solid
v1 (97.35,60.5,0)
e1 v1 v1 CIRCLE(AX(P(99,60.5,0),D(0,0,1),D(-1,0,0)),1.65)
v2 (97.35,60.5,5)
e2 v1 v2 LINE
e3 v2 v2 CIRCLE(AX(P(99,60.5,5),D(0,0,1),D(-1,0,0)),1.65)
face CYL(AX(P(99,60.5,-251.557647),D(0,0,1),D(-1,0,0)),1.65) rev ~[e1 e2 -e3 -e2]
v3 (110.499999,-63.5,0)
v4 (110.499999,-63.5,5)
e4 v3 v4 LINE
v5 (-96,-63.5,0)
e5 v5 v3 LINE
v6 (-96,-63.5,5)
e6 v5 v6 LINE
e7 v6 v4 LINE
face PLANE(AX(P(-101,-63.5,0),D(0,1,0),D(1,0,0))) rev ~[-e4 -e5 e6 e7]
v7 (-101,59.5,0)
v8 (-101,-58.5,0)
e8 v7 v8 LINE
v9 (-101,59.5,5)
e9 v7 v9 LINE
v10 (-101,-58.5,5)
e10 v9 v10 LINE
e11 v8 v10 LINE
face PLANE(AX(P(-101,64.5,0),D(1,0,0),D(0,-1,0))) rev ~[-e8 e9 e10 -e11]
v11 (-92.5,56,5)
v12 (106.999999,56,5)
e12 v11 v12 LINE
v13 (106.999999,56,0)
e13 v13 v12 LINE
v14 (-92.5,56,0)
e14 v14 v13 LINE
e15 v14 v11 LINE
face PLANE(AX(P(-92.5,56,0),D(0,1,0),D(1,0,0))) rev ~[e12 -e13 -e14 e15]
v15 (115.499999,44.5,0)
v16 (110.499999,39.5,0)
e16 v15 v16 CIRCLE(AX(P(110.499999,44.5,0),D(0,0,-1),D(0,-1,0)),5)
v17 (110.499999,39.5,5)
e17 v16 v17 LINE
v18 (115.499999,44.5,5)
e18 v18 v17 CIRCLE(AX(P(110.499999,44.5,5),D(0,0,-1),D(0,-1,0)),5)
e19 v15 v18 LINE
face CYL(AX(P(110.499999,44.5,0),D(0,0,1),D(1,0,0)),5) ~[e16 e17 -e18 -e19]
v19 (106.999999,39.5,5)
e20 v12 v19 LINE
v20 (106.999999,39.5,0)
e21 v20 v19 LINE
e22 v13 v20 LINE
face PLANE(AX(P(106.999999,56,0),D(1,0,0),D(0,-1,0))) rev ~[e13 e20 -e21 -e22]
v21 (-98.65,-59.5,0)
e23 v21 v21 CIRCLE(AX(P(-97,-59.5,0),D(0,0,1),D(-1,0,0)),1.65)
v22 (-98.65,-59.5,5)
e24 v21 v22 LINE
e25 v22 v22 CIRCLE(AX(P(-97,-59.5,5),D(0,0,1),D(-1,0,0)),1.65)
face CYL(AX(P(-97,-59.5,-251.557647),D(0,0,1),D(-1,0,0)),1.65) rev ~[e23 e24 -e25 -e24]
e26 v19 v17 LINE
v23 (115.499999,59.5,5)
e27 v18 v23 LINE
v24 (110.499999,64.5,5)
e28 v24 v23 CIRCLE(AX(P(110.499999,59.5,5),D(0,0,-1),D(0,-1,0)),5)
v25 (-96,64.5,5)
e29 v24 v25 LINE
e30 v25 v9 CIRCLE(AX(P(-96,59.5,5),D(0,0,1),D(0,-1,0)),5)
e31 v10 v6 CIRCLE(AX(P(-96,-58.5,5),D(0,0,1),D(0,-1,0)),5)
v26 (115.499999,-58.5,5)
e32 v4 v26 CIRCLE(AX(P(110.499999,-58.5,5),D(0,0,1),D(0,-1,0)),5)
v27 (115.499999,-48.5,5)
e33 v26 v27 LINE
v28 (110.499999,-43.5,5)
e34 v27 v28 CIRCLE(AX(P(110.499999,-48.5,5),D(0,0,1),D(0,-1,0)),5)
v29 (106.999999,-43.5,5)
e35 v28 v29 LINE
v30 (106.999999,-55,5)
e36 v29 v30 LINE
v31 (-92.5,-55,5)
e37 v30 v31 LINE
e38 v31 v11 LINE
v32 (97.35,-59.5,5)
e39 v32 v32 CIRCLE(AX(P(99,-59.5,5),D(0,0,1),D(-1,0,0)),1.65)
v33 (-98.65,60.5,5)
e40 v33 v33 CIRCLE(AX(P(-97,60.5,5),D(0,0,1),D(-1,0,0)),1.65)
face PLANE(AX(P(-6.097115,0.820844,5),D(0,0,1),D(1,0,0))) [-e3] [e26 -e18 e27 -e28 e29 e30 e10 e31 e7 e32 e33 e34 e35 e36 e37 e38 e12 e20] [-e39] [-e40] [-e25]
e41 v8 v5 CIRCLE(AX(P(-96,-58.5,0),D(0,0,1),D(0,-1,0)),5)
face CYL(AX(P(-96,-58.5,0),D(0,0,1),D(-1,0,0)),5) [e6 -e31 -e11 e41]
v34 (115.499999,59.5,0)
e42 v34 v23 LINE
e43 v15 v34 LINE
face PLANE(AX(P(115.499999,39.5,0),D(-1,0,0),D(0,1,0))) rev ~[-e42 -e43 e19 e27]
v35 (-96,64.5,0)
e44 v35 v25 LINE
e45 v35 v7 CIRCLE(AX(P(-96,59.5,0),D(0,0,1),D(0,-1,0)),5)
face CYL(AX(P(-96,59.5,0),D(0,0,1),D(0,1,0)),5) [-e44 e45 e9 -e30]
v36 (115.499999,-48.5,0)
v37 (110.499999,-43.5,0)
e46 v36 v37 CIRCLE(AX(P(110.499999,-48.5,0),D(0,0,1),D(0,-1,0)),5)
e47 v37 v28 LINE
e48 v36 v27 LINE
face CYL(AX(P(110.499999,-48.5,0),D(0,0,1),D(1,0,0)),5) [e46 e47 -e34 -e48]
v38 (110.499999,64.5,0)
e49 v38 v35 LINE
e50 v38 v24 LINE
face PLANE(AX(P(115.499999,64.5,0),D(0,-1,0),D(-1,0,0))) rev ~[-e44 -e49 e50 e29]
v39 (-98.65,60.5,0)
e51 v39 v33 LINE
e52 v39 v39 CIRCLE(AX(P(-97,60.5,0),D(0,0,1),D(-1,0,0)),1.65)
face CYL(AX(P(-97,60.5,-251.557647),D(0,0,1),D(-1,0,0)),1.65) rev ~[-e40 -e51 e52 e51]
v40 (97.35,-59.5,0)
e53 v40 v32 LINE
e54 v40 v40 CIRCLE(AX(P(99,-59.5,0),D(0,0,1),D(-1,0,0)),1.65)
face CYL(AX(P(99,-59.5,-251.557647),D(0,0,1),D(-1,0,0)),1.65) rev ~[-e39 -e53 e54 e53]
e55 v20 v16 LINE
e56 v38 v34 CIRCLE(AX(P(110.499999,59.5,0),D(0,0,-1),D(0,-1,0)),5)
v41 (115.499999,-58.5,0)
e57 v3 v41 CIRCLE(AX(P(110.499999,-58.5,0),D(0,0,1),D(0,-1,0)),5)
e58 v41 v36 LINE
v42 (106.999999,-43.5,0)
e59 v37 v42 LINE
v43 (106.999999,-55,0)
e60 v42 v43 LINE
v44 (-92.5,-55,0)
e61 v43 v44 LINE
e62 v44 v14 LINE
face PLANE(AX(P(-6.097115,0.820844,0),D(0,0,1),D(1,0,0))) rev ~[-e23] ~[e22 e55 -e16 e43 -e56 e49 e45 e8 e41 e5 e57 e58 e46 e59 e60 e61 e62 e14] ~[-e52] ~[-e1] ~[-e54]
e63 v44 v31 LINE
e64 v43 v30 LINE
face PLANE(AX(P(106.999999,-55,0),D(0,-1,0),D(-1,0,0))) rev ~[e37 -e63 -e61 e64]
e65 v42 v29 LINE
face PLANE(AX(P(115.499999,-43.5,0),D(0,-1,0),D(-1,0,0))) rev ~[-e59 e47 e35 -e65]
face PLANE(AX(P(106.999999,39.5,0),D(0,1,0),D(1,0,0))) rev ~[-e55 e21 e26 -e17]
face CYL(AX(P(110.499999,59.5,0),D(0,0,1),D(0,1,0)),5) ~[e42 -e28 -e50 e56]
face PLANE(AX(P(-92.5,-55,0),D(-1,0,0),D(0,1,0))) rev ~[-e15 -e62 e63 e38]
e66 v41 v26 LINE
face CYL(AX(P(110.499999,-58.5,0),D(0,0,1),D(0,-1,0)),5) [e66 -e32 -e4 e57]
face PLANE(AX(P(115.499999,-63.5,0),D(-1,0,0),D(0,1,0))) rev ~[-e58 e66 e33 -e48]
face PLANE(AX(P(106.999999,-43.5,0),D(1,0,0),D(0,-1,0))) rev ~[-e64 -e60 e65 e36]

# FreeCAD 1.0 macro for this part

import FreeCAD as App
import Part
import Sketcher
from FreeCAD import Vector


def edges_at(feature, points):
    """Names of the edges that pass closest to the given points."""
    edges = feature.Shape.Edges
    near = lambda p: min(range(len(edges)), key=lambda i: edges[i].distToShape(Part.Vertex(*p))[0])
    return sorted({f"Edge{near(p) + 1}" for p in points})

doc = App.newDocument("Part")
body = doc.addObject("PartDesign::Body", "Body")

sketch1 = body.newObject("Sketcher::SketchObject", "Sketch")
sketch1.AttachmentSupport = (doc.getObject("XY_Plane"), [""])
sketch1.MapMode = "FlatFace"
sketch1.addGeometry(Part.LineSegment(Vector(115, 64, 0), Vector(-101, 64, 0)), False)
sketch1.addGeometry(Part.LineSegment(Vector(-101, 64, 0), Vector(-101, -64, 0)), False)
sketch1.addGeometry(Part.LineSegment(Vector(-101, -64, 0), Vector(115, -64, 0)), False)
sketch1.addGeometry(Part.LineSegment(Vector(115, -64, 0), Vector(115, -44, 0)), False)
sketch1.addGeometry(Part.LineSegment(Vector(115, -44, 0), Vector(107, -44, 0)), False)
sketch1.addGeometry(Part.LineSegment(Vector(107, -44, 0), Vector(107, -55, 0)), False)
sketch1.addGeometry(Part.LineSegment(Vector(107, -55, 0), Vector(-92, -55, 0)), False)
sketch1.addGeometry(Part.LineSegment(Vector(-92, -55, 0), Vector(-92, 56, 0)), False)
sketch1.addGeometry(Part.LineSegment(Vector(-92, 56, 0), Vector(107, 56, 0)), False)
sketch1.addGeometry(Part.LineSegment(Vector(107, 56, 0), Vector(107, 40, 0)), False)
sketch1.addGeometry(Part.LineSegment(Vector(107, 40, 0), Vector(115, 40, 0)), False)
sketch1.addGeometry(Part.LineSegment(Vector(115, 40, 0), Vector(115, 64, 0)), False)
sketch1.addConstraint(Sketcher.Constraint("Coincident", 0, 2, 1, 1))
sketch1.addConstraint(Sketcher.Constraint("Coincident", 1, 2, 2, 1))
sketch1.addConstraint(Sketcher.Constraint("Coincident", 2, 2, 3, 1))
sketch1.addConstraint(Sketcher.Constraint("Coincident", 3, 2, 4, 1))
sketch1.addConstraint(Sketcher.Constraint("Coincident", 4, 2, 5, 1))
sketch1.addConstraint(Sketcher.Constraint("Coincident", 5, 2, 6, 1))
sketch1.addConstraint(Sketcher.Constraint("Coincident", 6, 2, 7, 1))
sketch1.addConstraint(Sketcher.Constraint("Coincident", 7, 2, 8, 1))
sketch1.addConstraint(Sketcher.Constraint("Coincident", 8, 2, 9, 1))
sketch1.addConstraint(Sketcher.Constraint("Coincident", 9, 2, 10, 1))
sketch1.addConstraint(Sketcher.Constraint("Coincident", 10, 2, 11, 1))
sketch1.addConstraint(Sketcher.Constraint("Coincident", 11, 2, 0, 1))
sketch1.addConstraint(Sketcher.Constraint("Horizontal", 0))
sketch1.addConstraint(Sketcher.Constraint("Vertical", 1))
sketch1.addConstraint(Sketcher.Constraint("Horizontal", 2))
sketch1.addConstraint(Sketcher.Constraint("Vertical", 3))
sketch1.addConstraint(Sketcher.Constraint("Horizontal", 4))
sketch1.addConstraint(Sketcher.Constraint("Vertical", 5))
sketch1.addConstraint(Sketcher.Constraint("Horizontal", 6))
sketch1.addConstraint(Sketcher.Constraint("Vertical", 7))
sketch1.addConstraint(Sketcher.Constraint("Horizontal", 8))
sketch1.addConstraint(Sketcher.Constraint("Vertical", 9))
sketch1.addConstraint(Sketcher.Constraint("Horizontal", 10))
sketch1.addConstraint(Sketcher.Constraint("Vertical", 11))
sketch1.addConstraint(Sketcher.Constraint("Vertical", 5, 2, 8, 2))
sketch1.addConstraint(Sketcher.Constraint("Vertical", 3, 2, 10, 2))
sketch1.addConstraint(Sketcher.Constraint("DistanceY", 1, 2, 1, 1, 128.0))
sketch1.addConstraint(Sketcher.Constraint("DistanceY", 3, 1, 3, 2, 20.0))
sketch1.addConstraint(Sketcher.Constraint("DistanceY", 7, 1, 7, 2, 111.0))
sketch1.addConstraint(Sketcher.Constraint("DistanceY", 11, 1, 11, 2, 25.0))
sketch1.addConstraint(Sketcher.Constraint("DistanceX", 0, 2, 0, 1, 216.499999))
sketch1.addConstraint(Sketcher.Constraint("DistanceX", 4, 2, 4, 1, 8.5))
sketch1.addConstraint(Sketcher.Constraint("DistanceX", 6, 2, 6, 1, 199.499999))
sketch1.addConstraint(Sketcher.Constraint("DistanceY", 5, 2, 5, 1, 11.5))
sketch1.addConstraint(Sketcher.Constraint("DistanceX", 0, 2, -1, 1, 101.0))
sketch1.addConstraint(Sketcher.Constraint("DistanceY", 5, 2, -1, 1, 55.0))
pad1 = body.newObject("PartDesign::Pad", "Pad")
pad1.Profile = sketch1
pad1.Length = 5

sketch2 = body.newObject("Sketcher::SketchObject", "Sketch001")
sketch2.AttachmentSupport = (doc.getObject("XY_Plane"), [""])
sketch2.MapMode = "FlatFace"
sketch2.addGeometry(Part.Circle(Vector(-97, 60.5, 0), Vector(0, 0, 1), 1.6), False)
sketch2.addGeometry(Part.Circle(Vector(99, 60.5, 0), Vector(0, 0, 1), 1.6), False)
sketch2.addGeometry(Part.Circle(Vector(99, -59.5, 0), Vector(0, 0, 1), 1.6), False)
sketch2.addGeometry(Part.Circle(Vector(-97, -59.5, 0), Vector(0, 0, 1), 1.6), False)
sketch2.addConstraint(Sketcher.Constraint("Equal", 0, 1))
sketch2.addConstraint(Sketcher.Constraint("Equal", 1, 2))
sketch2.addConstraint(Sketcher.Constraint("Equal", 2, 3))
sketch2.addConstraint(Sketcher.Constraint("Horizontal", 0, 3, 1, 3))
sketch2.addConstraint(Sketcher.Constraint("Horizontal", 2, 3, 3, 3))
sketch2.addConstraint(Sketcher.Constraint("Vertical", 1, 3, 2, 3))
sketch2.addConstraint(Sketcher.Constraint("Vertical", 0, 3, 3, 3))
sketch2.addConstraint(Sketcher.Constraint("Diameter", 0, 3.3))
sketch2.addConstraint(Sketcher.Constraint("DistanceX", 0, 3, -1, 1, 97.0))
sketch2.addConstraint(Sketcher.Constraint("DistanceX", -1, 1, 1, 3, 99.0))
sketch2.addConstraint(Sketcher.Constraint("DistanceY", 2, 3, 1, 3, 120.0))
sketch2.addConstraint(Sketcher.Constraint("DistanceY", -1, 1, 0, 3, 60.5))
doc.recompute()
hole = body.newObject("PartDesign::Hole", "Hole")
hole.Profile = sketch2
hole.ThreadType = "None"
hole.Diameter = 3.3
hole.DepthType = "ThroughAll"
hole.Reversed = True
doc.recompute()

fillet = body.newObject("PartDesign::Fillet", "Fillet")
fillet.Base = (hole, edges_at(hole, [
    (115.5, 39.5, 2.5),
    (115.5, 64.5, 2.5),
    (-101, 64.5, 2.5),
    (-101, -63.5, 2.5),
    (115.5, -63.5, 2.5),
    (115.5, -43.5, 2.5),
]))
fillet.Radius = 5

doc.recompute()
